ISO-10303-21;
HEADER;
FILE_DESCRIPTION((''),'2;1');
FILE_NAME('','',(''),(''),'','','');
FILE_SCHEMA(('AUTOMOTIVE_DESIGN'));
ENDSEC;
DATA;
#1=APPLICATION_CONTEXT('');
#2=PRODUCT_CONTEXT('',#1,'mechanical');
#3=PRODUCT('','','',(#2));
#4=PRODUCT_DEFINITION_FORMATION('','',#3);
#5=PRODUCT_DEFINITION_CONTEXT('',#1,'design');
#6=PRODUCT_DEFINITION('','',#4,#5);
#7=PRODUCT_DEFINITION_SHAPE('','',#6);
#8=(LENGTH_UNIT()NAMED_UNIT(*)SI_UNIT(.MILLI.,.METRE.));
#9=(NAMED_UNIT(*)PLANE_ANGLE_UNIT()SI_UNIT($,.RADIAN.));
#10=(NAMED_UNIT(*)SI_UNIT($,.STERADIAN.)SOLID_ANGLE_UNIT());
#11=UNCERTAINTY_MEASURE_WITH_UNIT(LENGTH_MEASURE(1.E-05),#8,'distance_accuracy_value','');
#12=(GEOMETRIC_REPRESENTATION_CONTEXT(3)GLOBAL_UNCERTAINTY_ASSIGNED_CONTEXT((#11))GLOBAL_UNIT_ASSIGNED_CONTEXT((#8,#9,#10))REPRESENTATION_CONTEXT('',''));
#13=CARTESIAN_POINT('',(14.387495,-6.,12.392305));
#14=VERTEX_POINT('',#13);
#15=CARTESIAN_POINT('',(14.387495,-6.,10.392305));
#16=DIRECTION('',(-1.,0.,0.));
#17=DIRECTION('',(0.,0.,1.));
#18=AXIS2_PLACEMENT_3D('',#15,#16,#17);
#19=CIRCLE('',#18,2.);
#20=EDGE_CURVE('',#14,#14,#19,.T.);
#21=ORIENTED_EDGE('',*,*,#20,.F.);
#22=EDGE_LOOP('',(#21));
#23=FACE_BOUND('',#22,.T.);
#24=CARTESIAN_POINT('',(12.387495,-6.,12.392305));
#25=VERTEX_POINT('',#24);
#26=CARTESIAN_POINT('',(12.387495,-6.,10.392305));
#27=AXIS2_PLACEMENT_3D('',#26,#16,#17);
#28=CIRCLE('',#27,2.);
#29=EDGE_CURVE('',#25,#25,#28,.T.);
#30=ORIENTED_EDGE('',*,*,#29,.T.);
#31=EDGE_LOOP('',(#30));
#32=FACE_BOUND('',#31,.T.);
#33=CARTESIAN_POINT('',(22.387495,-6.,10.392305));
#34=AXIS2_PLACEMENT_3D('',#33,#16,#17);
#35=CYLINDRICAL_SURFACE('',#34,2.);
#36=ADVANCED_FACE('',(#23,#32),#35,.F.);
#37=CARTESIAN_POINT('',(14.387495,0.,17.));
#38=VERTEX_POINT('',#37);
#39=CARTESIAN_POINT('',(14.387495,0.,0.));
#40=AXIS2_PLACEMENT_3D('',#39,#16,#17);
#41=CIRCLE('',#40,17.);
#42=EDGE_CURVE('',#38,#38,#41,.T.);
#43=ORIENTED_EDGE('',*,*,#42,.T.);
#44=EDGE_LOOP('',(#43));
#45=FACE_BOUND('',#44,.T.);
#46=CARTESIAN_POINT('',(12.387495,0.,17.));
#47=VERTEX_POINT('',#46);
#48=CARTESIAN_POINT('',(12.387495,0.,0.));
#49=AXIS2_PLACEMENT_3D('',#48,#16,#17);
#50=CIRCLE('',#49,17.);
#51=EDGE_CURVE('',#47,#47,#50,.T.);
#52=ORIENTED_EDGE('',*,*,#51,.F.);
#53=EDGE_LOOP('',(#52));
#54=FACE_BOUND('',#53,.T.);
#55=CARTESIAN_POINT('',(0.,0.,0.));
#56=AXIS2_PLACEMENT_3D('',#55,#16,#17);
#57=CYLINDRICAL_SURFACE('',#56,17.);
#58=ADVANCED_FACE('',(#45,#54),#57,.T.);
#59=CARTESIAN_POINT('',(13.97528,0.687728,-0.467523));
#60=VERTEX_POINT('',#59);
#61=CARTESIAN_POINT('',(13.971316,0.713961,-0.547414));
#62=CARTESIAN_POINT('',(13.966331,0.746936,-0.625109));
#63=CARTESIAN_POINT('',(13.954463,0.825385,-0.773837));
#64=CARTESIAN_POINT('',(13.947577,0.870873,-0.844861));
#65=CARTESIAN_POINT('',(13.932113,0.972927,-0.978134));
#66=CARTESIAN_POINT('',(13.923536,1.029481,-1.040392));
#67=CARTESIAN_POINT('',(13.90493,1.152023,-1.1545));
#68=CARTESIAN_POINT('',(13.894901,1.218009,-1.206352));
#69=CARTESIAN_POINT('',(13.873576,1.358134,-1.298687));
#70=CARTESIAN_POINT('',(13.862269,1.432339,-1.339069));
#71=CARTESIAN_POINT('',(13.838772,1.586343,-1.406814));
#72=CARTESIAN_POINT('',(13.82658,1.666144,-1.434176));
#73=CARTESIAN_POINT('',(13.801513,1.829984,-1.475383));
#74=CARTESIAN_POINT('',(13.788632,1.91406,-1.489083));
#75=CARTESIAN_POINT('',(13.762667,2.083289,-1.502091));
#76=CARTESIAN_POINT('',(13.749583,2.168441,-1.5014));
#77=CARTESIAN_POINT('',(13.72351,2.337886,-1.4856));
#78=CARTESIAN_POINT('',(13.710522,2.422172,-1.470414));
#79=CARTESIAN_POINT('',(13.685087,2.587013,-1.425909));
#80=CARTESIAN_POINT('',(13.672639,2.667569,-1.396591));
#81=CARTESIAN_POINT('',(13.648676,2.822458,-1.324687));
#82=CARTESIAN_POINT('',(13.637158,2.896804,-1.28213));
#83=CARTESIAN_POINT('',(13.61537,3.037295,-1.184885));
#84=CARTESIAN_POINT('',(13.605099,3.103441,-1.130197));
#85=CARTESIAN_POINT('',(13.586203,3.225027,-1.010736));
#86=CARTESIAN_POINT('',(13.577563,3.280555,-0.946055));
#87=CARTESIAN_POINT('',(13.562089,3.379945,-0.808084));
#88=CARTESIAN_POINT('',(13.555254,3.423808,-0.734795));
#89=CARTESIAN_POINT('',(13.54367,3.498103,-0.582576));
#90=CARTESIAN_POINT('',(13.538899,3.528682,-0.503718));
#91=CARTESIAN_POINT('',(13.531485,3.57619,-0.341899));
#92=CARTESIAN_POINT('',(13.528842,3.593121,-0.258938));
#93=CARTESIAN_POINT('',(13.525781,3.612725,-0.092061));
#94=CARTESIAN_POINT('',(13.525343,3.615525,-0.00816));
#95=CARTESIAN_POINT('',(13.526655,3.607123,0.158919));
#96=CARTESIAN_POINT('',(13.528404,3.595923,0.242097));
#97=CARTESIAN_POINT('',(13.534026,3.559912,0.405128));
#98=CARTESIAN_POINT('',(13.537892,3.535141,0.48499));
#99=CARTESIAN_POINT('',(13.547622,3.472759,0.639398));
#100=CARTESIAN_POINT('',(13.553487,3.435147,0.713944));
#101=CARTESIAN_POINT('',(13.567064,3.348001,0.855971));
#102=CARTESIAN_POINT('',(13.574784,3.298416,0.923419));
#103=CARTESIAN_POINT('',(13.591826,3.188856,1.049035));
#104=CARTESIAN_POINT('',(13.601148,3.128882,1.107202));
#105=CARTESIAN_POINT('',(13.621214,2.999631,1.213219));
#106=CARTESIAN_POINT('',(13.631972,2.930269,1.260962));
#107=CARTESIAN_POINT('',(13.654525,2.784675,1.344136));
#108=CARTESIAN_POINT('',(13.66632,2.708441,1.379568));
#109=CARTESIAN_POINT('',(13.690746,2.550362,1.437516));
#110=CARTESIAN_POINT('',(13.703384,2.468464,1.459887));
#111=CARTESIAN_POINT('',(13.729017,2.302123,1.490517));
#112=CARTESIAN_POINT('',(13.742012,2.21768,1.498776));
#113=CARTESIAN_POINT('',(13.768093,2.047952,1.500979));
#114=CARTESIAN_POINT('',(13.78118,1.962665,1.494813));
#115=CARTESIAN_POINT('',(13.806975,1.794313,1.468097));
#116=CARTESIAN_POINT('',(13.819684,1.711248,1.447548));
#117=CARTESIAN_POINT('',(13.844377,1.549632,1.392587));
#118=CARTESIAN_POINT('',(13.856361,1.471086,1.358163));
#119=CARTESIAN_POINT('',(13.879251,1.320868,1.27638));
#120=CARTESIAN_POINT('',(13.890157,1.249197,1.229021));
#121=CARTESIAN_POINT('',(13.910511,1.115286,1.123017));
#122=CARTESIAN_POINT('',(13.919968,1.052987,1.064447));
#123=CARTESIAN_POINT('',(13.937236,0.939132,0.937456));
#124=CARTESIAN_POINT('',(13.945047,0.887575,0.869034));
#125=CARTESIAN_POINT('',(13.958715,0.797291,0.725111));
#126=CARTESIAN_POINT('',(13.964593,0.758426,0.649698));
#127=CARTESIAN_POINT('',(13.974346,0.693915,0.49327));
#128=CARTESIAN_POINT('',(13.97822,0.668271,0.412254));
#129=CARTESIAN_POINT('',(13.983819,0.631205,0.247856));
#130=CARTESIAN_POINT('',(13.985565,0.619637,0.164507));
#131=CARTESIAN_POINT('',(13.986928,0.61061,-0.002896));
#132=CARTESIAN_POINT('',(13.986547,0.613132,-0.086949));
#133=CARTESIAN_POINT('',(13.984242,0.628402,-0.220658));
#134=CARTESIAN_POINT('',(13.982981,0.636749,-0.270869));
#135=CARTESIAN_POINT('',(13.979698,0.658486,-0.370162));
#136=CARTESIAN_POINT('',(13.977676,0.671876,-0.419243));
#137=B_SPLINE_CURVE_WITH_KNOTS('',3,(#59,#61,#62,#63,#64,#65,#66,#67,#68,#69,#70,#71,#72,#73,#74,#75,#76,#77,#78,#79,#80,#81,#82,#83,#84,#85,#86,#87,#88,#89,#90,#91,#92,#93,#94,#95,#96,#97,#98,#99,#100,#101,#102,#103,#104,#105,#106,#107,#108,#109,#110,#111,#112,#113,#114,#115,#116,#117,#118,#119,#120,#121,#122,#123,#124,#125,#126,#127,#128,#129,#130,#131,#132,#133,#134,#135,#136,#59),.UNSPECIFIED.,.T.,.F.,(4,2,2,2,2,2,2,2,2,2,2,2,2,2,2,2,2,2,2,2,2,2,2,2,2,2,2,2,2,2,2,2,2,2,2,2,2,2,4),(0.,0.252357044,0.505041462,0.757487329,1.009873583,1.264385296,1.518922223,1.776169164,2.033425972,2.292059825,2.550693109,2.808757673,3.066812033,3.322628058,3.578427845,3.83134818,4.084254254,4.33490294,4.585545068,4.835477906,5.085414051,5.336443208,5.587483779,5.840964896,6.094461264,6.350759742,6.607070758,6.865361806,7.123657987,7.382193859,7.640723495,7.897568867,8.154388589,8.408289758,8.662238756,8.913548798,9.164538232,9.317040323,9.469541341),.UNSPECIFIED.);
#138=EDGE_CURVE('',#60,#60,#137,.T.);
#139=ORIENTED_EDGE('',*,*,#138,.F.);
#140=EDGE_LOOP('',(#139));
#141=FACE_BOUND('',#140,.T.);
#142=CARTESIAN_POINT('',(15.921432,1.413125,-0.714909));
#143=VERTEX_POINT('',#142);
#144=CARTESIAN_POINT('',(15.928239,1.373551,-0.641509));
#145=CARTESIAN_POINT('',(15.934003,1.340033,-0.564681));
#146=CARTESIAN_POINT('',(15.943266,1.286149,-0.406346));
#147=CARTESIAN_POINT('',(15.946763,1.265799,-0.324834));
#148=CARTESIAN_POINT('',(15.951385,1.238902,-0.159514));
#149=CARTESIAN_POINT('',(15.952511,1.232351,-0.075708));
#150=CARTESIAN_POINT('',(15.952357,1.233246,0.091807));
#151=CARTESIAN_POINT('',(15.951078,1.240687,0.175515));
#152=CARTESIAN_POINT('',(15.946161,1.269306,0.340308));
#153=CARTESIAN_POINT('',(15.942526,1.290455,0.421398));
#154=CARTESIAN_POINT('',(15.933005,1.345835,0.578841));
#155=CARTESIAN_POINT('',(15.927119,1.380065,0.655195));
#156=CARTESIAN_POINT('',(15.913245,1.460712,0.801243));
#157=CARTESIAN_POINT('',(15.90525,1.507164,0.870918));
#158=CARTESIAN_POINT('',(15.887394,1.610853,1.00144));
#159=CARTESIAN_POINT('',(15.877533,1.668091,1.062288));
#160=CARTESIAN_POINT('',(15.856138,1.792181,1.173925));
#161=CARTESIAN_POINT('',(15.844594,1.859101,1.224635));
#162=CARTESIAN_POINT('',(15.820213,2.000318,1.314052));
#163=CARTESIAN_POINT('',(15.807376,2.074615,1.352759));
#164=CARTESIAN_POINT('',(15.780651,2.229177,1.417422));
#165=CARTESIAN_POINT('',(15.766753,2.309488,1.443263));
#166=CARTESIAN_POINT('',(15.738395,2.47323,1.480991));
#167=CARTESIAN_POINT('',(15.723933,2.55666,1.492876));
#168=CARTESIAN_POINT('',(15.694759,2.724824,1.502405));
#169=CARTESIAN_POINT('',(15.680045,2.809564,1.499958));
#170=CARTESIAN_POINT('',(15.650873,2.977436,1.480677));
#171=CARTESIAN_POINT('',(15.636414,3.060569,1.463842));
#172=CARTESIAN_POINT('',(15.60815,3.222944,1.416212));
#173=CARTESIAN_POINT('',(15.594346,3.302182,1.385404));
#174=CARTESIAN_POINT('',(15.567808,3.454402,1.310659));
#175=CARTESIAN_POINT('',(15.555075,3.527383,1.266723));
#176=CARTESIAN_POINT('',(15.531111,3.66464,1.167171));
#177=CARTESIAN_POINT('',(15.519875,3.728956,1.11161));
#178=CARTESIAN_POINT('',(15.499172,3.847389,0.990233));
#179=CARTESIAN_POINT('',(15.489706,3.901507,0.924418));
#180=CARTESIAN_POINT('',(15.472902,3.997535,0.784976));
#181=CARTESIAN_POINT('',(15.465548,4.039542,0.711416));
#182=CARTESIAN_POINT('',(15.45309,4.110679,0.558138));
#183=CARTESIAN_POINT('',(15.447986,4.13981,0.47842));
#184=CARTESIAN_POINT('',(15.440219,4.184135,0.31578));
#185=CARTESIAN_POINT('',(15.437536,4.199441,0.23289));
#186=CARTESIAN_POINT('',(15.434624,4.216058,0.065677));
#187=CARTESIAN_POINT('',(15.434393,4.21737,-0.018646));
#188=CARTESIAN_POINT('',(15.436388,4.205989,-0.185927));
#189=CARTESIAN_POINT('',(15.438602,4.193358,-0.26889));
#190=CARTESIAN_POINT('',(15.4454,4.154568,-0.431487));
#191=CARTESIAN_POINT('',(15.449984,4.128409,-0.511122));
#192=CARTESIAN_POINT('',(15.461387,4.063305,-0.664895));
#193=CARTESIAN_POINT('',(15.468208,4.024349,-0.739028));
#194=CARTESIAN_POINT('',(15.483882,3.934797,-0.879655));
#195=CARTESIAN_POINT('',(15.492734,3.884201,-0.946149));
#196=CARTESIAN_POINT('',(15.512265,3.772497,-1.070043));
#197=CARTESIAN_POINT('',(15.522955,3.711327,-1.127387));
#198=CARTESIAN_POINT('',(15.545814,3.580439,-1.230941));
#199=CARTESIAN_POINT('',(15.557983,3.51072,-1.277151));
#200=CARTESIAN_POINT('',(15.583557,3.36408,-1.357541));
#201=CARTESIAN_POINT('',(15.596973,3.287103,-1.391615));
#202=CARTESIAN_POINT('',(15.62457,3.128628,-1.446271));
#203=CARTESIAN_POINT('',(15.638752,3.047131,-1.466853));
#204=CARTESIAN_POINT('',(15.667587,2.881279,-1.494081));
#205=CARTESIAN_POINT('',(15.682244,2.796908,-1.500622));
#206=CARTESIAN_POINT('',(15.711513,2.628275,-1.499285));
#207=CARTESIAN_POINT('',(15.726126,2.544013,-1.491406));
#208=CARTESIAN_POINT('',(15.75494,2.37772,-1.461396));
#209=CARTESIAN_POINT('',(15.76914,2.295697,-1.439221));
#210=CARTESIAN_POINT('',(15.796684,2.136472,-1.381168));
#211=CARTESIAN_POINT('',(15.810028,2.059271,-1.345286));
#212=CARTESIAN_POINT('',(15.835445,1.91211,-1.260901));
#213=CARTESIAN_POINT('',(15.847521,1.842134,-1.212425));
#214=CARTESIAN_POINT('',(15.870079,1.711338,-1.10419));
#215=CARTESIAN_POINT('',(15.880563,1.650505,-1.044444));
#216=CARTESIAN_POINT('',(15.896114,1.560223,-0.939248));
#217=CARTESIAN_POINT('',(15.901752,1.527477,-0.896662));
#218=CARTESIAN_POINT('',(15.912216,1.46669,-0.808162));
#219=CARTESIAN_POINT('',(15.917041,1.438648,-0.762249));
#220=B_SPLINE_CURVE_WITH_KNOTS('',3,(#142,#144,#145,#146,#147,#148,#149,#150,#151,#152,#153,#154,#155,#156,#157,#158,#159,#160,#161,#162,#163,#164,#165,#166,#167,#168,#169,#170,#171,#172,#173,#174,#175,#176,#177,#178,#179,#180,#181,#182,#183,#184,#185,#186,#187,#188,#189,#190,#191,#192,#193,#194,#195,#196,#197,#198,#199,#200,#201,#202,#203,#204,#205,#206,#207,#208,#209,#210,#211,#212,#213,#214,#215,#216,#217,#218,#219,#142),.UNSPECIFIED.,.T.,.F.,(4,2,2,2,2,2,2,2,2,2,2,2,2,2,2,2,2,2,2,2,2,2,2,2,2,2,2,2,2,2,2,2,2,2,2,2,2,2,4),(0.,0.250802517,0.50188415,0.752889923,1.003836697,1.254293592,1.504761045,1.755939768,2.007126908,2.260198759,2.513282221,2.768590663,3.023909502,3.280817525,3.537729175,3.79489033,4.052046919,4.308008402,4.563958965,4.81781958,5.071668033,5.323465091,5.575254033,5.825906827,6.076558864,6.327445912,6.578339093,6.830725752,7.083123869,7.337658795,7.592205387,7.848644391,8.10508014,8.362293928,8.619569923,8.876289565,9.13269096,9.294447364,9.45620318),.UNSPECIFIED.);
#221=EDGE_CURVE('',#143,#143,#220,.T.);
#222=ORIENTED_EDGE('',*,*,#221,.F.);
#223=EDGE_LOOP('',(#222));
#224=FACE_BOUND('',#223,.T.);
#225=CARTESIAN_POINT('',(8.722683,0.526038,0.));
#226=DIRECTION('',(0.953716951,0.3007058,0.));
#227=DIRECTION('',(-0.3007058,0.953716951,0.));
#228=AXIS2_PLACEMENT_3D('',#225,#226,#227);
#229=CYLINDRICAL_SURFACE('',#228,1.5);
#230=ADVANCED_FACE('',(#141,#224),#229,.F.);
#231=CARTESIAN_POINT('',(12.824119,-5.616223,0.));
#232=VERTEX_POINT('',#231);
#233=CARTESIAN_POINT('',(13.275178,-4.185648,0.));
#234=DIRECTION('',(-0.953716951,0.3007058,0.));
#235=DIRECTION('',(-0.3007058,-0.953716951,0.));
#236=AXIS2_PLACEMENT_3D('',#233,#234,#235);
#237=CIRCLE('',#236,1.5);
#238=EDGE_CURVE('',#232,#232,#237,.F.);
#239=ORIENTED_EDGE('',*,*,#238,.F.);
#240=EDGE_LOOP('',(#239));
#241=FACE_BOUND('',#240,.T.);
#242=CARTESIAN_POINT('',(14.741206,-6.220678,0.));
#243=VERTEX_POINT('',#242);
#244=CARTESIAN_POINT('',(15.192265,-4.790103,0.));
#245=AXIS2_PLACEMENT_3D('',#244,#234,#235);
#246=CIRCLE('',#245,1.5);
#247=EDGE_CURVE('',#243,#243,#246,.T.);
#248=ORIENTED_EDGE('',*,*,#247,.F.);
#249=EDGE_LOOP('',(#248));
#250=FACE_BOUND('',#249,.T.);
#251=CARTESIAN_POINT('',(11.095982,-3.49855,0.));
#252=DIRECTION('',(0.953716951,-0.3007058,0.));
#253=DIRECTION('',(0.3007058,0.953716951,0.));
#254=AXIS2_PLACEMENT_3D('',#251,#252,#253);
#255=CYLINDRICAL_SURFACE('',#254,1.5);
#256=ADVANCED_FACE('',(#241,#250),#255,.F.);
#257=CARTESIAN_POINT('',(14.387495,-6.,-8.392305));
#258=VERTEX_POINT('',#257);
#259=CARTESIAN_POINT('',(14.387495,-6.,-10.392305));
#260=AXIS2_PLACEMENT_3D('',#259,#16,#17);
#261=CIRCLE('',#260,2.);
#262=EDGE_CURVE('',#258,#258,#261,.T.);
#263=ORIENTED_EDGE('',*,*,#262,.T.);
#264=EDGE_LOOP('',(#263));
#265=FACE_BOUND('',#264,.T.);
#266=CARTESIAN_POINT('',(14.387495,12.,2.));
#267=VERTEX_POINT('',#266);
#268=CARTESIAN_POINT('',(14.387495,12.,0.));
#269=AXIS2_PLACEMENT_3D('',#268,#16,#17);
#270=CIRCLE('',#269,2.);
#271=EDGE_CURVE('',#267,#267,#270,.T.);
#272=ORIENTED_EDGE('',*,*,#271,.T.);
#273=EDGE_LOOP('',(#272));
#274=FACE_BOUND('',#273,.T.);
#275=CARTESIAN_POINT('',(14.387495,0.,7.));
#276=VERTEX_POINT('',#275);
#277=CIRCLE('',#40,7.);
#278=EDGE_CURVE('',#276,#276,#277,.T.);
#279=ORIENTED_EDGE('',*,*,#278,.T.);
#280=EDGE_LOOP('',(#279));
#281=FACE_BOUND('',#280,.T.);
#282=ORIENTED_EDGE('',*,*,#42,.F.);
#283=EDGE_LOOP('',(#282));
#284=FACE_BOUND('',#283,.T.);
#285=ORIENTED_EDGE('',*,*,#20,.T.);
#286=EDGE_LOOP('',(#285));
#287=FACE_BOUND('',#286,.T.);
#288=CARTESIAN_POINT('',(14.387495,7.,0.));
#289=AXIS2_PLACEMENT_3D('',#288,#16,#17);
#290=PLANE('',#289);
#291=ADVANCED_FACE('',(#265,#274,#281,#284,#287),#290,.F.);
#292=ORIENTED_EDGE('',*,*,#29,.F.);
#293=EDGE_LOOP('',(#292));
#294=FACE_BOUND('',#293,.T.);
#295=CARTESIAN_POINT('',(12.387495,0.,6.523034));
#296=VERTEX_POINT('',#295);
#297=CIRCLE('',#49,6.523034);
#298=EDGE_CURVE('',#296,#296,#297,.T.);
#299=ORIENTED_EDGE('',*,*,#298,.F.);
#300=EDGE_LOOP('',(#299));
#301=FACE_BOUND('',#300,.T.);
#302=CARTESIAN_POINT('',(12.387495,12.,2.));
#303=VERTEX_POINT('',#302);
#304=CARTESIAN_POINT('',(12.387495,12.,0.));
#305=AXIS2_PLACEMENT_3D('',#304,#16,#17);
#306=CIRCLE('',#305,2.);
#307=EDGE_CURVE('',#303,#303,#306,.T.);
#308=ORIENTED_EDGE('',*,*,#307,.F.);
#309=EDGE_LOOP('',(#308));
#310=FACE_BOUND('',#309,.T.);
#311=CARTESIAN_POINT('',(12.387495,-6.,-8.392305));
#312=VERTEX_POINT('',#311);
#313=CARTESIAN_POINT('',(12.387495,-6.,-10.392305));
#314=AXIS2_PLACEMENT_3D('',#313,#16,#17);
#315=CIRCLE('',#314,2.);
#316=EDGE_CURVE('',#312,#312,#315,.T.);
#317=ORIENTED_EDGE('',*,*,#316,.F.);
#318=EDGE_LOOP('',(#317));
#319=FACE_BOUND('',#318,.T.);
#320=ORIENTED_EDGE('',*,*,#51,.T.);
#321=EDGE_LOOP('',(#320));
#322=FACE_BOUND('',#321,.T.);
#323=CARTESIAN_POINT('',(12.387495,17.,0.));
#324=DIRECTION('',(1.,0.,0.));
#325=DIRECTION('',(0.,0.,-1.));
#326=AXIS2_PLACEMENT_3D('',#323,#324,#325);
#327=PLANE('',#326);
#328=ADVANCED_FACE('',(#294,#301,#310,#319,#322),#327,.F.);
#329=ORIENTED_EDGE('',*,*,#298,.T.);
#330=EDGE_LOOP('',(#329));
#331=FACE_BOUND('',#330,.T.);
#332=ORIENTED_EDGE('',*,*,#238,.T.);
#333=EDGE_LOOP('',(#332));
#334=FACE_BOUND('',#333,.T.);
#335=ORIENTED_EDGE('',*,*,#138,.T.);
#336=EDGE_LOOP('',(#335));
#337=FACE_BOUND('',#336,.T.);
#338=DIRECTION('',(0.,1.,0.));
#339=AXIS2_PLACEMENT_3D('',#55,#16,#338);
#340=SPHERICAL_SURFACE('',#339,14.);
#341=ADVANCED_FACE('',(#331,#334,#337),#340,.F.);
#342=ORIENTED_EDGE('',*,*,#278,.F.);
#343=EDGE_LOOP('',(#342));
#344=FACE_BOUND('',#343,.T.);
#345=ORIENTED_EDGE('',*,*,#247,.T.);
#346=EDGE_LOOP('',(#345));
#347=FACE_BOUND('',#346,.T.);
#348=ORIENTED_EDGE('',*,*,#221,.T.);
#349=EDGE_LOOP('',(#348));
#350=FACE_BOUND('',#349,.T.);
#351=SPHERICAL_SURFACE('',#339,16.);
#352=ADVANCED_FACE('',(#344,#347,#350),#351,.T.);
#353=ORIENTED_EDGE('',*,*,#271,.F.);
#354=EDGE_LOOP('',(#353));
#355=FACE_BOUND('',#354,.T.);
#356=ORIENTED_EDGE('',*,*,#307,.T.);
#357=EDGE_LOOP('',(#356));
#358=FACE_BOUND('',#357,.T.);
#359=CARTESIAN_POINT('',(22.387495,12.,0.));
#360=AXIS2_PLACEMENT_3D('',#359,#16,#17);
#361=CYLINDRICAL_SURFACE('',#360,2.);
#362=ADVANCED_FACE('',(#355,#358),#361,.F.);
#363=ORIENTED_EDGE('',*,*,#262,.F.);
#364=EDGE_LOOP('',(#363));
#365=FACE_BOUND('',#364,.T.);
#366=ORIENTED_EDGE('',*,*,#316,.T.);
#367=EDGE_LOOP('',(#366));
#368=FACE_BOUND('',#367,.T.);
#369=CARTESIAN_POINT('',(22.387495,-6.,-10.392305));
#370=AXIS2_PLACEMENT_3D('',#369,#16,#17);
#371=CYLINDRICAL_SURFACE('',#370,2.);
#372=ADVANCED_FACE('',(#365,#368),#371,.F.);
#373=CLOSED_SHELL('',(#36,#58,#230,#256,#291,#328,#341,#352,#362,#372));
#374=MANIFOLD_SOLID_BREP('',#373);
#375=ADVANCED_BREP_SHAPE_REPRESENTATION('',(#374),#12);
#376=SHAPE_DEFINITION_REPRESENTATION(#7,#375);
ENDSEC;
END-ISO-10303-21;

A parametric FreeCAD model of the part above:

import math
import FreeCAD as App
import Part
import Sketcher

V = App.Vector

doc = App.newDocument("Part")
body = doc.addObject("PartDesign::Body", "Body")

# Sketch on XY plane
sketch1 = body.newObject("Sketcher::SketchObject", "Sketch")
sketch1.AttachmentSupport = (doc.getObject("XY_Plane"), [""])
sketch1.MapMode = "FlatFace"
sketch1.addGeometry([
    Part.LineSegment(V(14.387495, 7, 0), V(14.387495, 17, 0)),  # 0
    Part.LineSegment(V(14.387495, 17, 0), V(12.387495, 17, 0)),  # 1
    Part.LineSegment(V(12.387495, 17, 0), V(12.387495, 6.523034, 0)),  # 2
    Part.ArcOfCircle(Part.Circle(V(0, 0, 0), V(0, 0, 1), 14), math.radians(0), math.radians(27.770493)),  # 3
    Part.LineSegment(V(14, 0, 0), V(16, 0, 0)),  # 4
    Part.ArcOfCircle(Part.Circle(V(0, 0, 0), V(0, 0, 1), 16), math.radians(0), math.radians(25.94448)),  # 5
], False)
sketch1.addConstraint([
    Sketcher.Constraint("Coincident", 0, 2, 1, 1),
    Sketcher.Constraint("Coincident", 1, 2, 2, 1),
    Sketcher.Constraint("Coincident", 2, 2, 3, 2),
    Sketcher.Constraint("Coincident", 3, 1, 4, 1),
    Sketcher.Constraint("Coincident", 4, 2, 5, 1),
    Sketcher.Constraint("Coincident", 5, 2, 0, 1),
    Sketcher.Constraint("Vertical", 0),
    Sketcher.Constraint("Horizontal", 1),
    Sketcher.Constraint("Vertical", 2),
    Sketcher.Constraint("Horizontal", 4),
    Sketcher.Constraint("Coincident", 3, 3, -1, 1),
    Sketcher.Constraint("Coincident", 5, 3, -1, 1),
    Sketcher.Constraint("PointOnObject", 3, 1, -1),
    Sketcher.Constraint("Equal", 1, 4),
    Sketcher.Constraint("Radius", 3, 14.0),
    Sketcher.Constraint("Radius", 5, 16.0),
    Sketcher.Constraint("DistanceY", 0, 1, 0, 2, 10.0),
    Sketcher.Constraint("DistanceY", -1, 1, 0, 2, 17.0),
])
revolution = body.newObject("PartDesign::Revolution", "Revolution")
revolution.Profile = sketch1
revolution.ReferenceAxis = (sketch1, ["H_Axis"])
revolution.Angle = 360

# Sketch on YZ plane
sketch2 = body.newObject("Sketcher::SketchObject", "Sketch001")
sketch2.AttachmentSupport = (doc.getObject("YZ_Plane"), [""])
sketch2.MapMode = "FlatFace"
sketch2.AttachmentOffset = App.Placement(V(0, 0, 12.387495), App.Rotation())
sketch2.addGeometry([
    Part.Circle(V(12, 0, 0), V(0, 0, 1), 2),
    Part.Circle(V(-6, 10.392305, 0), V(0, 0, 1), 2),
    Part.Circle(V(-6, -10.392305, 0), V(0, 0, 1), 2),
], False)
sketch2.addConstraint([
    Sketcher.Constraint("Equal", 0, 1),
    Sketcher.Constraint("Equal", 1, 2),
    Sketcher.Constraint("Symmetric", 1, 3, 2, 3, -1),
    Sketcher.Constraint("PointOnObject", 0, 3, -1),
    Sketcher.Constraint("Diameter", 0, 4.0),
    Sketcher.Constraint("DistanceX", -1, 1, 0, 3, 12.0),
    Sketcher.Constraint("DistanceX", 1, 3, -1, 1, 6.0),
    Sketcher.Constraint("DistanceY", 2, 3, 1, 3, 20.78461),
])
pocket1 = body.newObject("PartDesign::Pocket", "Pocket")
pocket1.Profile = sketch2
pocket1.Length = 10
pocket1.Reversed = True

# Sketch on an angled plane
sketch3 = body.newObject("Sketcher::SketchObject", "Sketch002")
sketch3.Placement = App.Placement(V(18.259852, 3.533096, 0), App.Rotation(V(0, 0, -1), V(-0.3007058, 0.953716951, 0), V(0.953716951, 0.3007058, 0), "ZXY"))
sketch3.addGeometry(Part.Circle(V(0, 0, 0), V(0, 0, 1), 1.5), False)
sketch3.addConstraint([
    Sketcher.Constraint("Coincident", 0, 3, -1, 1),
    Sketcher.Constraint("Diameter", 0, 3.0),
])
pocket2 = body.newObject("PartDesign::Pocket", "Pocket001")
pocket2.Profile = sketch3
pocket2.Length = 10

# Sketch on an angled plane
sketch4 = body.newObject("Sketcher::SketchObject", "Sketch003")
sketch4.Placement = App.Placement(V(21.271029, -4.482516, 0), App.Rotation(V(0, 0, -1), V(0.3007058, 0.953716951, 0), V(0.953716951, -0.3007058, 0), "ZXY"))
sketch4.addGeometry(Part.Circle(V(0, -2.12127, 0), V(0, 0, 1), 1.5), False)
sketch4.addConstraint([
    Sketcher.Constraint("PointOnObject", 0, 3, -2),
    Sketcher.Constraint("Diameter", 0, 3.0),
    Sketcher.Constraint("DistanceY", 0, 3, -1, 1, 2.12127),
])
pocket3 = body.newObject("PartDesign::Pocket", "Pocket002")
pocket3.Profile = sketch4
pocket3.Length = 10

doc.recompute()
